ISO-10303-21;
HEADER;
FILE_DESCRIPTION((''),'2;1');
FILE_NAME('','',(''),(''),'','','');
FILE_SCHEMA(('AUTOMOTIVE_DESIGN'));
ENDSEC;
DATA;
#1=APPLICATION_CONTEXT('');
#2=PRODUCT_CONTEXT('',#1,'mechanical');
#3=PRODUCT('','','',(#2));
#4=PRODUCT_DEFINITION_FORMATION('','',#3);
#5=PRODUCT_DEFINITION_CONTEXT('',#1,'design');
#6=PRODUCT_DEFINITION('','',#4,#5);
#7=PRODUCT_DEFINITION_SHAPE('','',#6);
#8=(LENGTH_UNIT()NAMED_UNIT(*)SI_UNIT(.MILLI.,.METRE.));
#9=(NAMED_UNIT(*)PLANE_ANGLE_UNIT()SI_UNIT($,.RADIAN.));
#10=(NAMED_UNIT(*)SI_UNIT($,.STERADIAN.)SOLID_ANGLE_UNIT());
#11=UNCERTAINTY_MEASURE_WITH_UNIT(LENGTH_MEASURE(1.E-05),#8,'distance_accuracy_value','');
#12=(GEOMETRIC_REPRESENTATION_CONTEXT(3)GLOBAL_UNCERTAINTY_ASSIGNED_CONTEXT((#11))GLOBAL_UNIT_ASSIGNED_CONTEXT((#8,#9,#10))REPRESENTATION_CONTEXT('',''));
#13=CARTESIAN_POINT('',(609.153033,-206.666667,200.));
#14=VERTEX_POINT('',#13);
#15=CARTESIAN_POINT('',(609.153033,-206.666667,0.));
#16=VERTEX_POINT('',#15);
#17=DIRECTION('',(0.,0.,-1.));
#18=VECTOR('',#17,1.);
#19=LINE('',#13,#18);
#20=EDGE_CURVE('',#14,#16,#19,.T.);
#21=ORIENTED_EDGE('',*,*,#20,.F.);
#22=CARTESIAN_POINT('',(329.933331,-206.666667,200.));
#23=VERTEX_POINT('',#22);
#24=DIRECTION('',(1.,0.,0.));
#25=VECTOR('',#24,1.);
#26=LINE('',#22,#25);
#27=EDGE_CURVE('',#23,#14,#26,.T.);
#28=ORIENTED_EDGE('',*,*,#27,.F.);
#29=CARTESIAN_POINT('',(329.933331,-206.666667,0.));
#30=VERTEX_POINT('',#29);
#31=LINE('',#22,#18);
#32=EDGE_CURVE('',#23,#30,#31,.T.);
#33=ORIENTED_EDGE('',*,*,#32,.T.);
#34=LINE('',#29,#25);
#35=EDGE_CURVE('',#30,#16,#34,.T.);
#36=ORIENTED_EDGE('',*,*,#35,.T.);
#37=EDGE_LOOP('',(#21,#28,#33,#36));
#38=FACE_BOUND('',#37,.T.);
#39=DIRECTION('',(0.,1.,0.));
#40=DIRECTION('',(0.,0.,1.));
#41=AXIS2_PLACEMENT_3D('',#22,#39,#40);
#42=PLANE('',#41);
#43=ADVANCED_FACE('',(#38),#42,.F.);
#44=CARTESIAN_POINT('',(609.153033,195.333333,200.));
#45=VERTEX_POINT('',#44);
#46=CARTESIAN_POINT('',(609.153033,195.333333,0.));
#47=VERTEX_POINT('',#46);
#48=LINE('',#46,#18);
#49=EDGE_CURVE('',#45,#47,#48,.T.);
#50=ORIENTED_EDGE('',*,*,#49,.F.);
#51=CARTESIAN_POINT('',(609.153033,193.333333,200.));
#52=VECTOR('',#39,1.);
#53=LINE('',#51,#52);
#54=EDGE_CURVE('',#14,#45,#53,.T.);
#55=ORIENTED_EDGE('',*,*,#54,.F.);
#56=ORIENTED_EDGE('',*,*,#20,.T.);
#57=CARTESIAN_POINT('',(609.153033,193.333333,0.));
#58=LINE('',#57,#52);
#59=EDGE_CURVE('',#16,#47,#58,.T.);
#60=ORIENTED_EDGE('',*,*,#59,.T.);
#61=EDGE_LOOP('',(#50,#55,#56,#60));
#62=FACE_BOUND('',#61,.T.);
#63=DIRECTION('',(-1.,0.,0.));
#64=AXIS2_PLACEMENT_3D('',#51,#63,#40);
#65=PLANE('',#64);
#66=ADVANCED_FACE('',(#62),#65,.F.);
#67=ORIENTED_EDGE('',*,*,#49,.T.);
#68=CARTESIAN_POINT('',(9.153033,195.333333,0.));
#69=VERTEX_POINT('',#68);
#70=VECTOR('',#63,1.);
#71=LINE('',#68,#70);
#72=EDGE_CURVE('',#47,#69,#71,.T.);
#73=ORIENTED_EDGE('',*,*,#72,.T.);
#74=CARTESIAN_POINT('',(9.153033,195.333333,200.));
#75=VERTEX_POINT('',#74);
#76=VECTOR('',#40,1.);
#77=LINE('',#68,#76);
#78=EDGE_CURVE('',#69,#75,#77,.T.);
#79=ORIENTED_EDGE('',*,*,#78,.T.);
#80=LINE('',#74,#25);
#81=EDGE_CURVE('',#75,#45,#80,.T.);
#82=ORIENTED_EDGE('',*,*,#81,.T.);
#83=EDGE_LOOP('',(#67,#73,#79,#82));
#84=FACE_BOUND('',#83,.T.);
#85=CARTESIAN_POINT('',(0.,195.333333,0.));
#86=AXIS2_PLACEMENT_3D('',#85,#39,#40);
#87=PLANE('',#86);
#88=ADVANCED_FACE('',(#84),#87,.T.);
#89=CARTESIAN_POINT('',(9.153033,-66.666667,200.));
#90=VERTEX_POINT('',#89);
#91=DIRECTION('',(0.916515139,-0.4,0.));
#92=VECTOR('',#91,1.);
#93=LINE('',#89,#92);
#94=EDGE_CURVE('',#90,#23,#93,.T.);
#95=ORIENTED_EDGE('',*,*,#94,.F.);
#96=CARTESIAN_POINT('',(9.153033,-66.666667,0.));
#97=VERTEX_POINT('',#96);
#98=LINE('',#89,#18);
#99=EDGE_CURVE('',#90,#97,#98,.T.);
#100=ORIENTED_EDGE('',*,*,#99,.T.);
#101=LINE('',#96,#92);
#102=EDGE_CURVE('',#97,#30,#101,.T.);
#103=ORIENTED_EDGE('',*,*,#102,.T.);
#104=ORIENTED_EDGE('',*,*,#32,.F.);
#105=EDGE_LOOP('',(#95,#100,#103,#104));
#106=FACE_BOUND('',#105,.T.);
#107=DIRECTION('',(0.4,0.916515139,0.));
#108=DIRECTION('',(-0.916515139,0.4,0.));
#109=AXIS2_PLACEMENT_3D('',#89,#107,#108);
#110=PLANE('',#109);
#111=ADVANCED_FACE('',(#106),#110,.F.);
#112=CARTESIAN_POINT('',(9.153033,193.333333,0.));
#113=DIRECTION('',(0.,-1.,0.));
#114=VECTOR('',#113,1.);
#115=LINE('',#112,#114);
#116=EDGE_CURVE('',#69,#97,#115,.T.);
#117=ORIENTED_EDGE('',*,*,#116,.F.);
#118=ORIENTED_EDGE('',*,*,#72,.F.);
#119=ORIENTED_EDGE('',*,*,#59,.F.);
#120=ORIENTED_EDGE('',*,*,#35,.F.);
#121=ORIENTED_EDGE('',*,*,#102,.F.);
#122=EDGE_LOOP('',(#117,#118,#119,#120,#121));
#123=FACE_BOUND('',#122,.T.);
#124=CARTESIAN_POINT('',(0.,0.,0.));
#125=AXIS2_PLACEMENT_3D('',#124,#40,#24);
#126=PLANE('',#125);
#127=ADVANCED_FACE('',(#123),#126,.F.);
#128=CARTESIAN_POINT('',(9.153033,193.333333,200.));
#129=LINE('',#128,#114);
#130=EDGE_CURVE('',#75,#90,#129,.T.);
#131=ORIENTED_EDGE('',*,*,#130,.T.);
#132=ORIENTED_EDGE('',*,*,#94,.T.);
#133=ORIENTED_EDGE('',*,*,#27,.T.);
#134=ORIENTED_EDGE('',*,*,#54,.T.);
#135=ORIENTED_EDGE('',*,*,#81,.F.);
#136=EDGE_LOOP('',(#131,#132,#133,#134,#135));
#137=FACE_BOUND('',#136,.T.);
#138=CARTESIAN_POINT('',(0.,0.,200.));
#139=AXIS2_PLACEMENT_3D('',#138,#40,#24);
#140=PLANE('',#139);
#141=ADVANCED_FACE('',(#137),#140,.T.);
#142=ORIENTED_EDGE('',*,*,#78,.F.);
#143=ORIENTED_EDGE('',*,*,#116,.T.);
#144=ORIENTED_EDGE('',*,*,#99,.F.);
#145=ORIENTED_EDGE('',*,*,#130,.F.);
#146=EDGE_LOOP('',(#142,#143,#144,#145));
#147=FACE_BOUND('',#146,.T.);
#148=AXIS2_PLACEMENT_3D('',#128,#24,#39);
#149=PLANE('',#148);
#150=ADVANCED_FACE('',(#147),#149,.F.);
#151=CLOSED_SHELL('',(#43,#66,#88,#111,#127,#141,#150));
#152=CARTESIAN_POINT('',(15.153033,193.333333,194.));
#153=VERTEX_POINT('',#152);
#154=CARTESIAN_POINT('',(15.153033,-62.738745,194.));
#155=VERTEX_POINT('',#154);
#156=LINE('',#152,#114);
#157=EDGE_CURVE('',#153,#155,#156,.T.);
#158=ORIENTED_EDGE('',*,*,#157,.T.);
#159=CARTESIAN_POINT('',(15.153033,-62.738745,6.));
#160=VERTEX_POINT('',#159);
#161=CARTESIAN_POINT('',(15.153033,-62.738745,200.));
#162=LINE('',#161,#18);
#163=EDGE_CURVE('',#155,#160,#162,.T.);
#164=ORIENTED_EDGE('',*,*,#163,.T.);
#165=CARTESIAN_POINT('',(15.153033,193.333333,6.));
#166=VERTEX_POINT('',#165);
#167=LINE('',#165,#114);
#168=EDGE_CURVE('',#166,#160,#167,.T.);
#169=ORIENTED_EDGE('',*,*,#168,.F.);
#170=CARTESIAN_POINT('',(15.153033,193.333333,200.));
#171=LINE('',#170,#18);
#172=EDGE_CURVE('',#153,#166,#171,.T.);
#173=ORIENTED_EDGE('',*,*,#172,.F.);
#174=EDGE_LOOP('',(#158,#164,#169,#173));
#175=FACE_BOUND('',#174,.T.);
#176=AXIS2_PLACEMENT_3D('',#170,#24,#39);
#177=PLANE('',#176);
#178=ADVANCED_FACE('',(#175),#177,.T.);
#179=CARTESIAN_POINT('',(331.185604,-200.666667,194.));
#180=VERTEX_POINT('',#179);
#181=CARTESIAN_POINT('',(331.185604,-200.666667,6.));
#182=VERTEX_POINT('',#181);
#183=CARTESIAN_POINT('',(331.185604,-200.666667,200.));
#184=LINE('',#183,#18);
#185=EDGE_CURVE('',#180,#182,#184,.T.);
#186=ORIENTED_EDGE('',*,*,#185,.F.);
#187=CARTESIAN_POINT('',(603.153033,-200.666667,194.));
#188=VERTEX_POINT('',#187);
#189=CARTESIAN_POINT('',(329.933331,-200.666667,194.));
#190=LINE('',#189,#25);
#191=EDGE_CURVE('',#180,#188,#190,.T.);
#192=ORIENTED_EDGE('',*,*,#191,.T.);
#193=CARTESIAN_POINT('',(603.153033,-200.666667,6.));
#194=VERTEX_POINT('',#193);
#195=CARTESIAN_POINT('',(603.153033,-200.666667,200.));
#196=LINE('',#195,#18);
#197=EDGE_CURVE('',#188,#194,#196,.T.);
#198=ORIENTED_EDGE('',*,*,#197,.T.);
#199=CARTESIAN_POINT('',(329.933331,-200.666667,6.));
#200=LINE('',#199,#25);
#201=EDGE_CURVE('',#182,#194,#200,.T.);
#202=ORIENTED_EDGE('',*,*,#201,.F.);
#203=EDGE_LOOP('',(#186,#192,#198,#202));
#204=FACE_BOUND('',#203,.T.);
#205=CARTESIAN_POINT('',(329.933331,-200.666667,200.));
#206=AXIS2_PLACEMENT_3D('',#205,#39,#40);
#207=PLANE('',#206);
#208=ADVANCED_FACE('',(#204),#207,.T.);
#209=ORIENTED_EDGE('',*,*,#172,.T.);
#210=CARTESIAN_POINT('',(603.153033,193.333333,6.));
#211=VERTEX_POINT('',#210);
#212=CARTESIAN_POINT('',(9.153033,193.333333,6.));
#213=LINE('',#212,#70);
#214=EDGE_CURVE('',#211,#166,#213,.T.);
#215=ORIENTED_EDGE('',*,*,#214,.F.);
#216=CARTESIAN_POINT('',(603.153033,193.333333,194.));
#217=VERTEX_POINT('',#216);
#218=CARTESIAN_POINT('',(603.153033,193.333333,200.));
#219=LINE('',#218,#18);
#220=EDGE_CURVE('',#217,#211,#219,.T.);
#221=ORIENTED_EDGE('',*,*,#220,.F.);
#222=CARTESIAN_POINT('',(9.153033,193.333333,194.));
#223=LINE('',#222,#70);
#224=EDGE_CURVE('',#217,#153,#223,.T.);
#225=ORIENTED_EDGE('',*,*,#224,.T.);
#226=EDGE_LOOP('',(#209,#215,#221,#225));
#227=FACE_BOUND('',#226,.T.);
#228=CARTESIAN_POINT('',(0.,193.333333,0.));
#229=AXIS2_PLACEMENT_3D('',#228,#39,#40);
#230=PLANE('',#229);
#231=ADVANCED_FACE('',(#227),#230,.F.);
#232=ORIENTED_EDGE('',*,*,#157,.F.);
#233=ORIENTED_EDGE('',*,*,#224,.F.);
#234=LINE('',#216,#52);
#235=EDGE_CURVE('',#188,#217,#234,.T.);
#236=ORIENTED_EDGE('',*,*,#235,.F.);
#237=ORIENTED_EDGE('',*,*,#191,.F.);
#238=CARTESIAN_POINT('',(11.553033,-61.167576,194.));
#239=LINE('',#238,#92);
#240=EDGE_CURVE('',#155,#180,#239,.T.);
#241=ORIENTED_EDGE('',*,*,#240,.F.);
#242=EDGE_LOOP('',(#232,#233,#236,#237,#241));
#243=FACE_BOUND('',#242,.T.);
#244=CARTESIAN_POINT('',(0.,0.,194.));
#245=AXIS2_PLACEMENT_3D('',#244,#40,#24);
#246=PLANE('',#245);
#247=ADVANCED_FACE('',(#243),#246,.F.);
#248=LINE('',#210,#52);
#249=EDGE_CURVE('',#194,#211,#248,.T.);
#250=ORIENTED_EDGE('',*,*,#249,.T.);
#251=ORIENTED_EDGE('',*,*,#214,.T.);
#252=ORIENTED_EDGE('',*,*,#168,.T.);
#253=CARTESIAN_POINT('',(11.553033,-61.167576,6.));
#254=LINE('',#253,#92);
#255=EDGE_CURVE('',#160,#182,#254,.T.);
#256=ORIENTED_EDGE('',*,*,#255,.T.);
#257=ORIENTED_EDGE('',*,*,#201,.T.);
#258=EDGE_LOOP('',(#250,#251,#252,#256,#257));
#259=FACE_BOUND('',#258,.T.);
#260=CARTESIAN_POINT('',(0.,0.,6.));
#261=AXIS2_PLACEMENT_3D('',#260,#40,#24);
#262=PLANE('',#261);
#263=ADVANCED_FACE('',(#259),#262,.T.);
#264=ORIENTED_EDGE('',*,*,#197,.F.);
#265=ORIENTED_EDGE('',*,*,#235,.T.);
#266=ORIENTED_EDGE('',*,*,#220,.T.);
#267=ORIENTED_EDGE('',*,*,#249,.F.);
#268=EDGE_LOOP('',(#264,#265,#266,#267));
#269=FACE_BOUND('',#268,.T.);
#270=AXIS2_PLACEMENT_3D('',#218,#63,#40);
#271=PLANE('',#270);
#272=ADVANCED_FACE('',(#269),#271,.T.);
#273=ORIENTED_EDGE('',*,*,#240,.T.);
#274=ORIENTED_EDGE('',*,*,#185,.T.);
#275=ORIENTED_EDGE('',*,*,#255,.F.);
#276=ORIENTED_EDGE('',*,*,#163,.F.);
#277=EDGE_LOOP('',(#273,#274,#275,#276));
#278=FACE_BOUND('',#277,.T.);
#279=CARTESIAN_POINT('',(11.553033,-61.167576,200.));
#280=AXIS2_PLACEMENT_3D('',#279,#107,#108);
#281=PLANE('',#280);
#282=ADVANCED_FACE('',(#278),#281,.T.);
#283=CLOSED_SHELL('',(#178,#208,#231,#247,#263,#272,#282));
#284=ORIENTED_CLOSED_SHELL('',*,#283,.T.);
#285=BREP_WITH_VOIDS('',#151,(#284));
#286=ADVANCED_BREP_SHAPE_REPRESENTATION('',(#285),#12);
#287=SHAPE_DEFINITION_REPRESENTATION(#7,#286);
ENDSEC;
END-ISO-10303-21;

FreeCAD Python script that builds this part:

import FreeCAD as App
import Part
import Sketcher

V = App.Vector
Q = App.Units.Quantity


def faces_at(feature, points):
    """Names of the faces that lie closest to the given points."""
    faces = feature.Shape.Faces
    near = lambda p: min(range(len(faces)), key=lambda i: faces[i].distToShape(Part.Vertex(*p))[0])
    return sorted({f"Face{near(p) + 1}" for p in points})


def add_polygon(sketch, points):
    """Adds a closed chain of lines whose ends are joined by coincident constraints."""
    first, n = sketch.GeometryCount, len(points)
    for a, b in zip(points, points[1:] + points[:1]):
        sketch.addGeometry(Part.LineSegment(App.Vector(*a, 0), App.Vector(*b, 0)), False)
    for i in range(n):
        sketch.addConstraint(Sketcher.Constraint("Coincident", first + i, 2, first + (i + 1) % n, 1))

doc = App.newDocument("Part")
body = doc.addObject("PartDesign::Body", "Body")

# Sketch on XY plane
sketch1 = body.newObject("Sketcher::SketchObject", "Sketch")
sketch1.AttachmentSupport = (doc.getObject("XY_Plane"), [""])
sketch1.MapMode = "FlatFace"
add_polygon(sketch1, [(9, -67), (330, -207), (609, -207), (609, 193), (9, 193)])  # lines 0-4
sketch1.addConstraint([
    Sketcher.Constraint("Horizontal", 1),
    Sketcher.Constraint("Vertical", 2),
    Sketcher.Constraint("Horizontal", 3),
    Sketcher.Constraint("Vertical", 4),
    Sketcher.Constraint("DistanceX", 3, 2, 3, 1, Q("600 mm")),
    Sketcher.Constraint("DistanceY", 2, 1, 2, 2, Q("400 mm")),
    Sketcher.Constraint("DistanceY", 4, 2, 4, 1, Q("260 mm")),
    Sketcher.Constraint("Distance", 0, Q("350 mm")),
    Sketcher.Constraint("DistanceX", -1, 1, 0, 2, Q("329.933331 mm")),
    Sketcher.Constraint("DistanceY", 0, 2, -1, 1, Q("206.666667 mm")),
])
pad1 = body.newObject("PartDesign::Pad", "Pad")
pad1.Profile = sketch1
pad1.Length = 200
doc.recompute()

thickness = body.newObject("PartDesign::Thickness", "Thickness")
thickness.Base = (pad1, faces_at(pad1, [(309.153, 193.333, 100)]))
thickness.Value = 6
thickness.Reversed = True
thickness.Join = "Intersection"

# Sketch on XZ plane
sketch2 = body.newObject("Sketcher::SketchObject", "Sketch001")
sketch2.AttachmentSupport = (doc.getObject("XZ_Plane"), [""])
sketch2.MapMode = "FlatFace"
sketch2.AttachmentOffset = App.Placement(V(0, 0, -193.333333), App.Rotation())
add_polygon(sketch2, [(9, 0), (9, 200), (609, 200), (609, 0)])  # lines 0-3
sketch2.addConstraint([
    Sketcher.Constraint("Vertical", 0),
    Sketcher.Constraint("Horizontal", 1),
    Sketcher.Constraint("Vertical", 2),
    Sketcher.Constraint("Horizontal", 3),
    Sketcher.Constraint("PointOnObject", 2, 2, -1),
    Sketcher.Constraint("DistanceX", 1, 1, 1, 2, Q("600 mm")),
    Sketcher.Constraint("DistanceY", 0, 1, 0, 2, Q("200 mm")),
    Sketcher.Constraint("DistanceX", -1, 1, 0, 2, Q("9.153033 mm")),
])
pad2 = body.newObject("PartDesign::Pad", "Pad001")
pad2.Profile = sketch2
pad2.Length = 2
pad2.Reversed = True

doc.recompute()
